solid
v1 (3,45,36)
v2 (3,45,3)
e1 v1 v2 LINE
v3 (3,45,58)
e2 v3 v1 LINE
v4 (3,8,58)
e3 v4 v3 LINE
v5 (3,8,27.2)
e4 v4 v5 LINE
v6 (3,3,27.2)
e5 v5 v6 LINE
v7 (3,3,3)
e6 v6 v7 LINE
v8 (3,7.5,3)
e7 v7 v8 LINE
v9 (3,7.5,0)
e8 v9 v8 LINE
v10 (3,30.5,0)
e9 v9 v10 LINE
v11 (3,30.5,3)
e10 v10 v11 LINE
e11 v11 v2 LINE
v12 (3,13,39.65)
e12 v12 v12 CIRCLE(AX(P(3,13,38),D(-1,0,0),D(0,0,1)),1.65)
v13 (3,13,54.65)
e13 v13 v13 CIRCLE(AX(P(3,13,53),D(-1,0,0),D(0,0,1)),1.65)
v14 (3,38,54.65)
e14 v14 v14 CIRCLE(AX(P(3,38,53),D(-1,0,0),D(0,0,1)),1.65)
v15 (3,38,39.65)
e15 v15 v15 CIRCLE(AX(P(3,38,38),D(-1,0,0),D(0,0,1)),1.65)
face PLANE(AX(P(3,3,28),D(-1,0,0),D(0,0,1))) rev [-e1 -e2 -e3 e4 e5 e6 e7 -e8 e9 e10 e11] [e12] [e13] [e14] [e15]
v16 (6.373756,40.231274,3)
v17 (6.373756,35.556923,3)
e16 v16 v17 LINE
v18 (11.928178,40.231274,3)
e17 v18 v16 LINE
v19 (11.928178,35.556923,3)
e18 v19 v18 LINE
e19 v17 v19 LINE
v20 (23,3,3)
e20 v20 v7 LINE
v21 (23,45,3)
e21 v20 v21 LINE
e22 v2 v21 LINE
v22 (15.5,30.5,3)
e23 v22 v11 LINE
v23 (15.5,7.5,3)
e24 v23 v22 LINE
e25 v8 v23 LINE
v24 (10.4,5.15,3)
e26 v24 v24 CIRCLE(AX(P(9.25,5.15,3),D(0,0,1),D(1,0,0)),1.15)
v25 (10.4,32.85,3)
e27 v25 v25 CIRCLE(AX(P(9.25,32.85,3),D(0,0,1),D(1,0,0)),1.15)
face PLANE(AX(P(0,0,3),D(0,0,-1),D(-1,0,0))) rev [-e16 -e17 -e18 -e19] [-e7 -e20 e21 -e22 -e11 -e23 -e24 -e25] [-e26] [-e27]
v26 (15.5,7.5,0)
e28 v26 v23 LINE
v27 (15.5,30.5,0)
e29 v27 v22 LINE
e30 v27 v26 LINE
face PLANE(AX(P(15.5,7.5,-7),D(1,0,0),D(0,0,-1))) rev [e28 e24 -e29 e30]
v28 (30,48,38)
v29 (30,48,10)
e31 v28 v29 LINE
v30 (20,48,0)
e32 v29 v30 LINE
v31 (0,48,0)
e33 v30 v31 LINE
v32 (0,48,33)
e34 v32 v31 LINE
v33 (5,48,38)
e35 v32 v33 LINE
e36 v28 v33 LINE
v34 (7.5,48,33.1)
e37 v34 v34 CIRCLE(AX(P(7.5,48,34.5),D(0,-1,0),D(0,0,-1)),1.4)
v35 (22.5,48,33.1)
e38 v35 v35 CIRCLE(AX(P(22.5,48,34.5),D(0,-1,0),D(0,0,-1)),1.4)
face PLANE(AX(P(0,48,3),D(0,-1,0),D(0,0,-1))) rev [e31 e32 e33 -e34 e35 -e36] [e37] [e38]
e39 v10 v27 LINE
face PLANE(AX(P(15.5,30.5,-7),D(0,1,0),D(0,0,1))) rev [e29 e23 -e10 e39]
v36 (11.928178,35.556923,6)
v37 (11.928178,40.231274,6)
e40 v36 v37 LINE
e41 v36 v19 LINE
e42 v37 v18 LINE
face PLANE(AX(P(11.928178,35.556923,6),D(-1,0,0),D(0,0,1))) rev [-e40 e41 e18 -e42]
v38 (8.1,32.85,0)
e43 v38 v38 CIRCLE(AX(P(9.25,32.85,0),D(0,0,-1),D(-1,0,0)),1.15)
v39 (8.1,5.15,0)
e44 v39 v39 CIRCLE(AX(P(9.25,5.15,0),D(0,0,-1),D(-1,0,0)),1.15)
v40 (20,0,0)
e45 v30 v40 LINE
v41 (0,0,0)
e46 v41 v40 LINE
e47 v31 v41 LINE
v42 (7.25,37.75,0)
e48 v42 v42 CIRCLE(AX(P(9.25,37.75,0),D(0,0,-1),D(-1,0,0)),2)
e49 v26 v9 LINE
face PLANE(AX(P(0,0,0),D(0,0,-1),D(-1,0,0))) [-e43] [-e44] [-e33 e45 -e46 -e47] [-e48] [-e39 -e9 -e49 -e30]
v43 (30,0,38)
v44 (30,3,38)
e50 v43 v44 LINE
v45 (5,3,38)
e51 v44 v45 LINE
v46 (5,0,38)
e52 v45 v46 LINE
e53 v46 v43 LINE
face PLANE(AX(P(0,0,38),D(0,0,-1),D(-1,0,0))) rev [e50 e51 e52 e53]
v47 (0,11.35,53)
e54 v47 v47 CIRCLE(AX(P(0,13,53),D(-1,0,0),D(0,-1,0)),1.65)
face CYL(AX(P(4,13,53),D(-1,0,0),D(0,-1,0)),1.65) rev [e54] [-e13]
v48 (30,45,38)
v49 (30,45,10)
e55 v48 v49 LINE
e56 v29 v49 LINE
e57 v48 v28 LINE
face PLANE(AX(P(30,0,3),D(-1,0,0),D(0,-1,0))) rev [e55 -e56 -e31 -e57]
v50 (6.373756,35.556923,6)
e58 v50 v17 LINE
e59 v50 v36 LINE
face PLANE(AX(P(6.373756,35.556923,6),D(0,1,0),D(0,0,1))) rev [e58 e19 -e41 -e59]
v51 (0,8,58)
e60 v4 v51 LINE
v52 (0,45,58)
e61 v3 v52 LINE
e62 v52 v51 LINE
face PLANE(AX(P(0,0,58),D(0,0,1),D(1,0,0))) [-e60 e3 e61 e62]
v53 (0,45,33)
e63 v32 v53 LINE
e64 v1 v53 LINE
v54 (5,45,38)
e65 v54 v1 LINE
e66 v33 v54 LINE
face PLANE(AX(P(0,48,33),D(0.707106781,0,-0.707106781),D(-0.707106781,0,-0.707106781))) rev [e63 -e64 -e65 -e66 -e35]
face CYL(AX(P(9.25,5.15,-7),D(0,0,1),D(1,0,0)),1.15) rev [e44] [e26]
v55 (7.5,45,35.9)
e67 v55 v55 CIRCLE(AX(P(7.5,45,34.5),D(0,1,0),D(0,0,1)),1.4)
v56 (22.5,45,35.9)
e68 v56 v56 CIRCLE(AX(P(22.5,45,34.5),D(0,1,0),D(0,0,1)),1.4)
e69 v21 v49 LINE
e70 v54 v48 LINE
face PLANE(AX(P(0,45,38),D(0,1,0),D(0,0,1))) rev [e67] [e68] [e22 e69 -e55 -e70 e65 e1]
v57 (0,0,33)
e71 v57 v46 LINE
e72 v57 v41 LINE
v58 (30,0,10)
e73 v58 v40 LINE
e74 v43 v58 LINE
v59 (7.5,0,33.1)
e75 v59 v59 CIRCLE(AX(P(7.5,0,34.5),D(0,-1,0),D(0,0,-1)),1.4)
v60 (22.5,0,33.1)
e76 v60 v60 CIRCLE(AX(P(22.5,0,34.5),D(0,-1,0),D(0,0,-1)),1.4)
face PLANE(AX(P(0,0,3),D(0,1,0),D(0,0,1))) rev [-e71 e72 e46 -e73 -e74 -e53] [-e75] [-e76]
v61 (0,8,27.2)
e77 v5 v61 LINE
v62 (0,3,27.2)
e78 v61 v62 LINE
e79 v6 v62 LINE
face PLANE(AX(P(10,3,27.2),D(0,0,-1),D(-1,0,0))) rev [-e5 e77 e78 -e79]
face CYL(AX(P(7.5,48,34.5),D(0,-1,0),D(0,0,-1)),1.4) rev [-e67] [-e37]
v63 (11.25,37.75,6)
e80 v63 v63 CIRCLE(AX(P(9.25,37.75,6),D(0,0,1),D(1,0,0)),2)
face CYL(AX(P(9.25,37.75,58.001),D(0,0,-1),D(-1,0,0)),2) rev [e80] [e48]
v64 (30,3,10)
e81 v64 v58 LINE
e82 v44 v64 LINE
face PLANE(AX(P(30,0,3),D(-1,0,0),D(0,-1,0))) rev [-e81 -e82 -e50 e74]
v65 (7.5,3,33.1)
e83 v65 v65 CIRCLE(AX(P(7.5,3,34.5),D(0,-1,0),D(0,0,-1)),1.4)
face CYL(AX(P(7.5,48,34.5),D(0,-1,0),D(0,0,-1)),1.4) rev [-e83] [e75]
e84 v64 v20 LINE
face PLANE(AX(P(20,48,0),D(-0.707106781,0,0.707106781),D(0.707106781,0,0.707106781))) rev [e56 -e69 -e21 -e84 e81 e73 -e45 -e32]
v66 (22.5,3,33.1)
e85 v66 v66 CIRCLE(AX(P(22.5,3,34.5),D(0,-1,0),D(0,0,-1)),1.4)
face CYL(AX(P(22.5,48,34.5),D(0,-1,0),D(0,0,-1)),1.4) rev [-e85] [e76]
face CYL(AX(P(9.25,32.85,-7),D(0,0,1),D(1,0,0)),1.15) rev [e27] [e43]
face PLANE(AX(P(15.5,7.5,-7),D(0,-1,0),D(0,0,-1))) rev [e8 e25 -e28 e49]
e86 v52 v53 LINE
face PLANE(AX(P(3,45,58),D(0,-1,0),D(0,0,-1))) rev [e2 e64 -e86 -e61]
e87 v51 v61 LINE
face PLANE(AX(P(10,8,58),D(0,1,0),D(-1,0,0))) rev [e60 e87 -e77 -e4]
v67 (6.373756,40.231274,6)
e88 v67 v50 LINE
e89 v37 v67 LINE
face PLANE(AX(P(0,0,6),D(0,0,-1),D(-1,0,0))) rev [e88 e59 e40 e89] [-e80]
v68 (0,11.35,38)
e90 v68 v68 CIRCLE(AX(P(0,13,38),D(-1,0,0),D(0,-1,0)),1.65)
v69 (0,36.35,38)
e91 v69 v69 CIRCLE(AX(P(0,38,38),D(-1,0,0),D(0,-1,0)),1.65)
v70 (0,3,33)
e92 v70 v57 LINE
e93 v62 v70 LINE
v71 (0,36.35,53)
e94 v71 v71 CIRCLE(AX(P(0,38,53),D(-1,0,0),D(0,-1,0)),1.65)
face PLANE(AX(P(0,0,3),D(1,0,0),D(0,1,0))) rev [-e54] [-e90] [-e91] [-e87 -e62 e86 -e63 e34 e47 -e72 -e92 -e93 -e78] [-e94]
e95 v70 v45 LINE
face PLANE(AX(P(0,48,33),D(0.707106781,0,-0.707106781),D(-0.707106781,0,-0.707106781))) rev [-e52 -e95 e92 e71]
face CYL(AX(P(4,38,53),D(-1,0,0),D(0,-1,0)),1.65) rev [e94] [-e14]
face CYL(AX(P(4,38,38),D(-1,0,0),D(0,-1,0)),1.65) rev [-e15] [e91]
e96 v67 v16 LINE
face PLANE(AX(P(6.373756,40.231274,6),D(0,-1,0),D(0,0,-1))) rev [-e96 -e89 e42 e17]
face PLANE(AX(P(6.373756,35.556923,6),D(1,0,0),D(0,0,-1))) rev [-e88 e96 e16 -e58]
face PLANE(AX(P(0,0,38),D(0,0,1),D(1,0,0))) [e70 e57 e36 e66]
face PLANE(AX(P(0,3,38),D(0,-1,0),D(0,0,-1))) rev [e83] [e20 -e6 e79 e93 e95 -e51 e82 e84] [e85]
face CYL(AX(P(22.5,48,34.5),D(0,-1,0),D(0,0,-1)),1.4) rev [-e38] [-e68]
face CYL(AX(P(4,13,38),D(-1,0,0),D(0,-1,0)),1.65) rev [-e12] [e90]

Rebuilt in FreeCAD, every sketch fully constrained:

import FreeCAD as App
import Part
import Sketcher

V = App.Vector
Q = App.Units.Quantity


def add_polygon(sketch, points):
    """Adds a closed chain of lines whose ends are joined by coincident constraints."""
    first, n = sketch.GeometryCount, len(points)
    for a, b in zip(points, points[1:] + points[:1]):
        sketch.addGeometry(Part.LineSegment(App.Vector(*a, 0), App.Vector(*b, 0)), False)
    for i in range(n):
        sketch.addConstraint(Sketcher.Constraint("Coincident", first + i, 2, first + (i + 1) % n, 1))

doc = App.newDocument("Part")
body = doc.addObject("PartDesign::Body", "Body")

# Sketch on XY plane
sketch1 = body.newObject("Sketcher::SketchObject", "Sketch")
sketch1.AttachmentSupport = (doc.getObject("XY_Plane"), [""])
sketch1.MapMode = "FlatFace"
add_polygon(sketch1, [(0, 48), (0, 0), (30, 0), (30, 48)])  # lines 0-3
sketch1.addConstraint([
    Sketcher.Constraint("Vertical", 0),
    Sketcher.Constraint("Horizontal", 1),
    Sketcher.Constraint("Vertical", 2),
    Sketcher.Constraint("Horizontal", 3),
    Sketcher.Constraint("Coincident", 0, 2, -1, 1),
    Sketcher.Constraint("DistanceX", 1, 1, 1, 2, Q("30 mm")),
    Sketcher.Constraint("DistanceY", 0, 2, 0, 1, Q("48 mm")),
])
pad1 = body.newObject("PartDesign::Pad", "Pad")
pad1.Profile = sketch1
pad1.Length = 3

# Sketch on XY plane
sketch2 = body.newObject("Sketcher::SketchObject", "Sketch001")
sketch2.AttachmentSupport = (doc.getObject("XY_Plane"), [""])
sketch2.MapMode = "FlatFace"
sketch2.AttachmentOffset = App.Placement(V(0, 0, 3), App.Rotation())
add_polygon(sketch2, [(0, 48), (0, 45), (30, 45), (30, 48)])  # lines 0-3
add_polygon(sketch2, [(0, 3), (0, 0), (30, 0), (30, 3)])  # lines 4-7
sketch2.addConstraint([
    Sketcher.Constraint("Vertical", 0),
    Sketcher.Constraint("Horizontal", 1),
    Sketcher.Constraint("Vertical", 2),
    Sketcher.Constraint("Horizontal", 3),
    Sketcher.Constraint("Vertical", 4),
    Sketcher.Constraint("Horizontal", 5),
    Sketcher.Constraint("Vertical", 6),
    Sketcher.Constraint("Horizontal", 7),
    Sketcher.Constraint("Coincident", 4, 2, -1, 1),
    Sketcher.Constraint("PointOnObject", 0, 2, -2),
    Sketcher.Constraint("Vertical", 2, 2, 5, 2),
    Sketcher.Constraint("Equal", 2, 4),
    Sketcher.Constraint("DistanceX", 1, 1, 1, 2, Q("30 mm")),
    Sketcher.Constraint("DistanceY", 0, 2, 0, 1, Q("3 mm")),
    Sketcher.Constraint("DistanceY", -1, 1, 0, 2, Q("45 mm")),
])
pad2 = body.newObject("PartDesign::Pad", "Pad001")
pad2.Profile = sketch2
pad2.Length = 35

# Sketch on XZ plane
sketch3 = body.newObject("Sketcher::SketchObject", "Sketch002")
sketch3.AttachmentSupport = (doc.getObject("XZ_Plane"), [""])
sketch3.MapMode = "FlatFace"
add_polygon(sketch3, [(0, 33), (5, 38), (0, 38)])  # lines 0-2
sketch3.addConstraint([
    Sketcher.Constraint("Horizontal", 1),
    Sketcher.Constraint("Vertical", 2),
    Sketcher.Constraint("PointOnObject", 1, 2, -2),
    Sketcher.Constraint("Equal", 1, 2),
    Sketcher.Constraint("DistanceX", 1, 2, 1, 1, Q("5 mm")),
    Sketcher.Constraint("DistanceY", -1, 1, 0, 2, Q("38 mm")),
])
pocket1 = body.newObject("PartDesign::Pocket", "Pocket")
pocket1.Profile = sketch3
pocket1.Type = "ThroughAll"

# Sketch on XZ plane
sketch4 = body.newObject("Sketcher::SketchObject", "Sketch003")
sketch4.AttachmentSupport = (doc.getObject("XZ_Plane"), [""])
sketch4.MapMode = "FlatFace"
add_polygon(sketch4, [(30, 10), (20, 0), (30, 0)])  # lines 0-2
sketch4.addConstraint([
    Sketcher.Constraint("Horizontal", 1),
    Sketcher.Constraint("Vertical", 2),
    Sketcher.Constraint("PointOnObject", 0, 2, -1),
    Sketcher.Constraint("Equal", 1, 2),
    Sketcher.Constraint("DistanceX", 1, 1, 1, 2, Q("10 mm")),
    Sketcher.Constraint("DistanceX", -1, 1, 0, 2, Q("20 mm")),
])
pocket2 = body.newObject("PartDesign::Pocket", "Pocket001")
pocket2.Profile = sketch4
pocket2.Type = "ThroughAll"

# Sketch on XY plane
sketch5 = body.newObject("Sketcher::SketchObject", "Sketch004")
sketch5.AttachmentSupport = (doc.getObject("XY_Plane"), [""])
sketch5.MapMode = "FlatFace"
sketch5.AttachmentOffset = App.Placement(V(0, 0, 3), App.Rotation())
add_polygon(sketch5, [(0, 45), (0, 3), (3, 3), (3, 45)])  # lines 0-3
sketch5.addConstraint([
    Sketcher.Constraint("Vertical", 0),
    Sketcher.Constraint("Horizontal", 1),
    Sketcher.Constraint("Vertical", 2),
    Sketcher.Constraint("Horizontal", 3),
    Sketcher.Constraint("PointOnObject", 0, 2, -2),
    Sketcher.Constraint("DistanceX", 1, 1, 1, 2, Q("3 mm")),
    Sketcher.Constraint("DistanceY", 0, 2, 0, 1, Q("42 mm")),
    Sketcher.Constraint("DistanceY", -1, 1, 0, 2, Q("3 mm")),
])
pad3 = body.newObject("PartDesign::Pad", "Pad002")
pad3.Profile = sketch5
pad3.Length = 25

# Sketch on XY plane
sketch6 = body.newObject("Sketcher::SketchObject", "Sketch005")
sketch6.AttachmentSupport = (doc.getObject("XY_Plane"), [""])
sketch6.MapMode = "FlatFace"
sketch6.AttachmentOffset = App.Placement(V(0, 0, 28), App.Rotation())
add_polygon(sketch6, [(0, 45), (0, 3), (3, 3), (3, 45)])  # lines 0-3
sketch6.addConstraint([
    Sketcher.Constraint("Vertical", 0),
    Sketcher.Constraint("Horizontal", 1),
    Sketcher.Constraint("Vertical", 2),
    Sketcher.Constraint("Horizontal", 3),
    Sketcher.Constraint("PointOnObject", 0, 2, -2),
    Sketcher.Constraint("DistanceX", 1, 1, 1, 2, Q("3 mm")),
    Sketcher.Constraint("DistanceY", 0, 2, 0, 1, Q("42 mm")),
    Sketcher.Constraint("DistanceY", -1, 1, 0, 2, Q("3 mm")),
])
pad4 = body.newObject("PartDesign::Pad", "Pad003")
pad4.Profile = sketch6
pad4.Length = 30

# Sketch on YZ plane
sketch7 = body.newObject("Sketcher::SketchObject", "Sketch006")
sketch7.AttachmentSupport = (doc.getObject("YZ_Plane"), [""])
sketch7.MapMode = "FlatFace"
sketch7.addGeometry([
    Part.Circle(V(13, 38, 0), V(0, 0, 1), 1.6),
    Part.Circle(V(38, 38, 0), V(0, 0, 1), 1.6),
    Part.Circle(V(38, 53, 0), V(0, 0, 1), 1.6),
    Part.Circle(V(13, 53, 0), V(0, 0, 1), 1.6),
], False)
sketch7.addConstraint([
    Sketcher.Constraint("Equal", 0, 1),
    Sketcher.Constraint("Equal", 1, 2),
    Sketcher.Constraint("Equal", 2, 3),
    Sketcher.Constraint("Horizontal", 0, 3, 1, 3),
    Sketcher.Constraint("Horizontal", 2, 3, 3, 3),
    Sketcher.Constraint("Vertical", 1, 3, 2, 3),
    Sketcher.Constraint("Vertical", 0, 3, 3, 3),
    Sketcher.Constraint("Diameter", 0, Q("3.3 mm")),
    Sketcher.Constraint("DistanceX", -1, 1, 0, 3, Q("13 mm")),
    Sketcher.Constraint("DistanceY", -1, 1, 0, 3, Q("38 mm")),
    Sketcher.Constraint("DistanceX", -1, 1, 1, 3, Q("38 mm")),
    Sketcher.Constraint("DistanceY", -1, 1, 2, 3, Q("53 mm")),
])
pocket3 = body.newObject("PartDesign::Pocket", "Pocket002")
pocket3.Profile = sketch7
pocket3.Length = 4
pocket3.Reversed = True

# Sketch on XY plane
sketch8 = body.newObject("Sketcher::SketchObject", "Sketch007")
sketch8.AttachmentSupport = (doc.getObject("XY_Plane"), [""])
sketch8.MapMode = "FlatFace"
sketch8.AttachmentOffset = App.Placement(V(0, 0, 3), App.Rotation())
sketch8.addGeometry(Part.Circle(V(9.2, 32.9, 0), V(0, 0, 1), 1.1), False)  # 0
sketch8.addGeometry(Part.Circle(V(9.2, 5.2, 0), V(0, 0, 1), 1.1), False)  # 1
add_polygon(sketch8, [(3, 30.5), (3, 7.5), (15.5, 7.5), (15.5, 30.5)])  # lines 2-5
sketch8.addConstraint([
    Sketcher.Constraint("Vertical", 2),
    Sketcher.Constraint("Horizontal", 3),
    Sketcher.Constraint("Vertical", 4),
    Sketcher.Constraint("Horizontal", 5),
    Sketcher.Constraint("Equal", 0, 1),
    Sketcher.Constraint("Vertical", 0, 3, 1, 3),
    Sketcher.Constraint("Diameter", 0, Q("2.3 mm")),
    Sketcher.Constraint("DistanceY", 2, 2, 2, 1, Q("23 mm")),
    Sketcher.Constraint("DistanceX", 3, 1, 3, 2, Q("12.5 mm")),
    Sketcher.Constraint("DistanceX", -1, 1, 2, 2, Q("3 mm")),
    Sketcher.Constraint("DistanceY", -1, 1, 2, 2, Q("7.5 mm")),
    Sketcher.Constraint("DistanceY", 1, 3, 0, 3, Q("27.7 mm")),
    Sketcher.Constraint("DistanceX", -1, 1, 0, 3, Q("9.25 mm")),
    Sketcher.Constraint("DistanceY", -1, 1, 0, 3, Q("32.85 mm")),
])
pocket4 = body.newObject("PartDesign::Pocket", "Pocket003")
pocket4.Profile = sketch8
pocket4.Length = 10

# Sketch on YZ plane
sketch9 = body.newObject("Sketcher::SketchObject", "Sketch008")
sketch9.AttachmentSupport = (doc.getObject("YZ_Plane"), [""])
sketch9.MapMode = "FlatFace"
add_polygon(sketch9, [(8, 27), (3, 27), (3, 58), (8, 58)])  # lines 0-3
sketch9.addConstraint([
    Sketcher.Constraint("Horizontal", 0),
    Sketcher.Constraint("Vertical", 1),
    Sketcher.Constraint("Horizontal", 2),
    Sketcher.Constraint("Vertical", 3),
    Sketcher.Constraint("DistanceX", 0, 2, 0, 1, Q("5 mm")),
    Sketcher.Constraint("DistanceY", 1, 1, 1, 2, Q("30.8 mm")),
    Sketcher.Constraint("DistanceX", -1, 1, 0, 2, Q("3 mm")),
    Sketcher.Constraint("DistanceY", -1, 1, 1, 2, Q("58 mm")),
])
pocket5 = body.newObject("PartDesign::Pocket", "Pocket004")
pocket5.Profile = sketch9
pocket5.Length = 10
pocket5.Reversed = True

# Sketch on XZ plane
sketch10 = body.newObject("Sketcher::SketchObject", "Sketch009")
sketch10.AttachmentSupport = (doc.getObject("XZ_Plane"), [""])
sketch10.MapMode = "FlatFace"
sketch10.addGeometry([
    Part.Circle(V(22.5, 34.5, 0), V(0, 0, 1), 1.4),
    Part.Circle(V(7.5, 34.5, 0), V(0, 0, 1), 1.4),
], False)
sketch10.addConstraint([
    Sketcher.Constraint("Equal", 0, 1),
    Sketcher.Constraint("Horizontal", 0, 3, 1, 3),
    Sketcher.Constraint("Diameter", 0, Q("2.8 mm")),
    Sketcher.Constraint("DistanceX", 1, 3, 0, 3, Q("15 mm")),
    Sketcher.Constraint("DistanceX", -1, 1, 0, 3, Q("22.5 mm")),
    Sketcher.Constraint("DistanceY", -1, 1, 0, 3, Q("34.5 mm")),
])
pocket6 = body.newObject("PartDesign::Pocket", "Pocket005")
pocket6.Profile = sketch10
pocket6.Type = "ThroughAll"

# Sketch on XY plane
sketch11 = body.newObject("Sketcher::SketchObject", "Sketch010")
sketch11.AttachmentSupport = (doc.getObject("XY_Plane"), [""])
sketch11.MapMode = "FlatFace"
sketch11.addGeometry(Part.Circle(V(9.2, 37.8, 0), V(0, 0, 1), 2), False)
sketch11.addConstraint([
    Sketcher.Constraint("Diameter", 0, Q("4 mm")),
    Sketcher.Constraint("DistanceX", -1, 1, 0, 3, Q("9.25 mm")),
    Sketcher.Constraint("DistanceY", -1, 1, 0, 3, Q("37.75 mm")),
])
pocket7 = body.newObject("PartDesign::Pocket", "Pocket006")
pocket7.Profile = sketch11
pocket7.Type = "UpToFirst"
pocket7.Reversed = True

# Sketch on XY plane
sketch12 = body.newObject("Sketcher::SketchObject", "Sketch011")
sketch12.AttachmentSupport = (doc.getObject("XY_Plane"), [""])
sketch12.MapMode = "FlatFace"
sketch12.AttachmentOffset = App.Placement(V(0, 0, 3), App.Rotation())
add_polygon(sketch12, [(6.4, 40.2), (6.4, 35.6), (11.9, 35.6), (11.9, 40.2)])  # lines 0-3
sketch12.addGeometry(Part.Circle(V(9.2, 37.8, 0), V(0, 0, 1), 2), False)  # 4
sketch12.addConstraint([
    Sketcher.Constraint("Vertical", 0),
    Sketcher.Constraint("Horizontal", 1),
    Sketcher.Constraint("Vertical", 2),
    Sketcher.Constraint("Horizontal", 3),
    Sketcher.Constraint("Diameter", 4, Q("4 mm")),
    Sketcher.Constraint("DistanceX", -1, 1, 4, 3, Q("9.25 mm")),
    Sketcher.Constraint("DistanceY", -1, 1, 4, 3, Q("37.75 mm")),
    Sketcher.Constraint("DistanceX", 1, 1, 1, 2, Q("5.554422 mm")),
    Sketcher.Constraint("DistanceY", 0, 2, 0, 1, Q("4.674351 mm")),
    Sketcher.Constraint("DistanceX", -1, 1, 0, 2, Q("6.373756 mm")),
    Sketcher.Constraint("DistanceY", -1, 1, 0, 2, Q("35.556923 mm")),
])
pad5 = body.newObject("PartDesign::Pad", "Pad004")
pad5.Profile = sketch12
pad5.Length = 3

doc.recompute()
